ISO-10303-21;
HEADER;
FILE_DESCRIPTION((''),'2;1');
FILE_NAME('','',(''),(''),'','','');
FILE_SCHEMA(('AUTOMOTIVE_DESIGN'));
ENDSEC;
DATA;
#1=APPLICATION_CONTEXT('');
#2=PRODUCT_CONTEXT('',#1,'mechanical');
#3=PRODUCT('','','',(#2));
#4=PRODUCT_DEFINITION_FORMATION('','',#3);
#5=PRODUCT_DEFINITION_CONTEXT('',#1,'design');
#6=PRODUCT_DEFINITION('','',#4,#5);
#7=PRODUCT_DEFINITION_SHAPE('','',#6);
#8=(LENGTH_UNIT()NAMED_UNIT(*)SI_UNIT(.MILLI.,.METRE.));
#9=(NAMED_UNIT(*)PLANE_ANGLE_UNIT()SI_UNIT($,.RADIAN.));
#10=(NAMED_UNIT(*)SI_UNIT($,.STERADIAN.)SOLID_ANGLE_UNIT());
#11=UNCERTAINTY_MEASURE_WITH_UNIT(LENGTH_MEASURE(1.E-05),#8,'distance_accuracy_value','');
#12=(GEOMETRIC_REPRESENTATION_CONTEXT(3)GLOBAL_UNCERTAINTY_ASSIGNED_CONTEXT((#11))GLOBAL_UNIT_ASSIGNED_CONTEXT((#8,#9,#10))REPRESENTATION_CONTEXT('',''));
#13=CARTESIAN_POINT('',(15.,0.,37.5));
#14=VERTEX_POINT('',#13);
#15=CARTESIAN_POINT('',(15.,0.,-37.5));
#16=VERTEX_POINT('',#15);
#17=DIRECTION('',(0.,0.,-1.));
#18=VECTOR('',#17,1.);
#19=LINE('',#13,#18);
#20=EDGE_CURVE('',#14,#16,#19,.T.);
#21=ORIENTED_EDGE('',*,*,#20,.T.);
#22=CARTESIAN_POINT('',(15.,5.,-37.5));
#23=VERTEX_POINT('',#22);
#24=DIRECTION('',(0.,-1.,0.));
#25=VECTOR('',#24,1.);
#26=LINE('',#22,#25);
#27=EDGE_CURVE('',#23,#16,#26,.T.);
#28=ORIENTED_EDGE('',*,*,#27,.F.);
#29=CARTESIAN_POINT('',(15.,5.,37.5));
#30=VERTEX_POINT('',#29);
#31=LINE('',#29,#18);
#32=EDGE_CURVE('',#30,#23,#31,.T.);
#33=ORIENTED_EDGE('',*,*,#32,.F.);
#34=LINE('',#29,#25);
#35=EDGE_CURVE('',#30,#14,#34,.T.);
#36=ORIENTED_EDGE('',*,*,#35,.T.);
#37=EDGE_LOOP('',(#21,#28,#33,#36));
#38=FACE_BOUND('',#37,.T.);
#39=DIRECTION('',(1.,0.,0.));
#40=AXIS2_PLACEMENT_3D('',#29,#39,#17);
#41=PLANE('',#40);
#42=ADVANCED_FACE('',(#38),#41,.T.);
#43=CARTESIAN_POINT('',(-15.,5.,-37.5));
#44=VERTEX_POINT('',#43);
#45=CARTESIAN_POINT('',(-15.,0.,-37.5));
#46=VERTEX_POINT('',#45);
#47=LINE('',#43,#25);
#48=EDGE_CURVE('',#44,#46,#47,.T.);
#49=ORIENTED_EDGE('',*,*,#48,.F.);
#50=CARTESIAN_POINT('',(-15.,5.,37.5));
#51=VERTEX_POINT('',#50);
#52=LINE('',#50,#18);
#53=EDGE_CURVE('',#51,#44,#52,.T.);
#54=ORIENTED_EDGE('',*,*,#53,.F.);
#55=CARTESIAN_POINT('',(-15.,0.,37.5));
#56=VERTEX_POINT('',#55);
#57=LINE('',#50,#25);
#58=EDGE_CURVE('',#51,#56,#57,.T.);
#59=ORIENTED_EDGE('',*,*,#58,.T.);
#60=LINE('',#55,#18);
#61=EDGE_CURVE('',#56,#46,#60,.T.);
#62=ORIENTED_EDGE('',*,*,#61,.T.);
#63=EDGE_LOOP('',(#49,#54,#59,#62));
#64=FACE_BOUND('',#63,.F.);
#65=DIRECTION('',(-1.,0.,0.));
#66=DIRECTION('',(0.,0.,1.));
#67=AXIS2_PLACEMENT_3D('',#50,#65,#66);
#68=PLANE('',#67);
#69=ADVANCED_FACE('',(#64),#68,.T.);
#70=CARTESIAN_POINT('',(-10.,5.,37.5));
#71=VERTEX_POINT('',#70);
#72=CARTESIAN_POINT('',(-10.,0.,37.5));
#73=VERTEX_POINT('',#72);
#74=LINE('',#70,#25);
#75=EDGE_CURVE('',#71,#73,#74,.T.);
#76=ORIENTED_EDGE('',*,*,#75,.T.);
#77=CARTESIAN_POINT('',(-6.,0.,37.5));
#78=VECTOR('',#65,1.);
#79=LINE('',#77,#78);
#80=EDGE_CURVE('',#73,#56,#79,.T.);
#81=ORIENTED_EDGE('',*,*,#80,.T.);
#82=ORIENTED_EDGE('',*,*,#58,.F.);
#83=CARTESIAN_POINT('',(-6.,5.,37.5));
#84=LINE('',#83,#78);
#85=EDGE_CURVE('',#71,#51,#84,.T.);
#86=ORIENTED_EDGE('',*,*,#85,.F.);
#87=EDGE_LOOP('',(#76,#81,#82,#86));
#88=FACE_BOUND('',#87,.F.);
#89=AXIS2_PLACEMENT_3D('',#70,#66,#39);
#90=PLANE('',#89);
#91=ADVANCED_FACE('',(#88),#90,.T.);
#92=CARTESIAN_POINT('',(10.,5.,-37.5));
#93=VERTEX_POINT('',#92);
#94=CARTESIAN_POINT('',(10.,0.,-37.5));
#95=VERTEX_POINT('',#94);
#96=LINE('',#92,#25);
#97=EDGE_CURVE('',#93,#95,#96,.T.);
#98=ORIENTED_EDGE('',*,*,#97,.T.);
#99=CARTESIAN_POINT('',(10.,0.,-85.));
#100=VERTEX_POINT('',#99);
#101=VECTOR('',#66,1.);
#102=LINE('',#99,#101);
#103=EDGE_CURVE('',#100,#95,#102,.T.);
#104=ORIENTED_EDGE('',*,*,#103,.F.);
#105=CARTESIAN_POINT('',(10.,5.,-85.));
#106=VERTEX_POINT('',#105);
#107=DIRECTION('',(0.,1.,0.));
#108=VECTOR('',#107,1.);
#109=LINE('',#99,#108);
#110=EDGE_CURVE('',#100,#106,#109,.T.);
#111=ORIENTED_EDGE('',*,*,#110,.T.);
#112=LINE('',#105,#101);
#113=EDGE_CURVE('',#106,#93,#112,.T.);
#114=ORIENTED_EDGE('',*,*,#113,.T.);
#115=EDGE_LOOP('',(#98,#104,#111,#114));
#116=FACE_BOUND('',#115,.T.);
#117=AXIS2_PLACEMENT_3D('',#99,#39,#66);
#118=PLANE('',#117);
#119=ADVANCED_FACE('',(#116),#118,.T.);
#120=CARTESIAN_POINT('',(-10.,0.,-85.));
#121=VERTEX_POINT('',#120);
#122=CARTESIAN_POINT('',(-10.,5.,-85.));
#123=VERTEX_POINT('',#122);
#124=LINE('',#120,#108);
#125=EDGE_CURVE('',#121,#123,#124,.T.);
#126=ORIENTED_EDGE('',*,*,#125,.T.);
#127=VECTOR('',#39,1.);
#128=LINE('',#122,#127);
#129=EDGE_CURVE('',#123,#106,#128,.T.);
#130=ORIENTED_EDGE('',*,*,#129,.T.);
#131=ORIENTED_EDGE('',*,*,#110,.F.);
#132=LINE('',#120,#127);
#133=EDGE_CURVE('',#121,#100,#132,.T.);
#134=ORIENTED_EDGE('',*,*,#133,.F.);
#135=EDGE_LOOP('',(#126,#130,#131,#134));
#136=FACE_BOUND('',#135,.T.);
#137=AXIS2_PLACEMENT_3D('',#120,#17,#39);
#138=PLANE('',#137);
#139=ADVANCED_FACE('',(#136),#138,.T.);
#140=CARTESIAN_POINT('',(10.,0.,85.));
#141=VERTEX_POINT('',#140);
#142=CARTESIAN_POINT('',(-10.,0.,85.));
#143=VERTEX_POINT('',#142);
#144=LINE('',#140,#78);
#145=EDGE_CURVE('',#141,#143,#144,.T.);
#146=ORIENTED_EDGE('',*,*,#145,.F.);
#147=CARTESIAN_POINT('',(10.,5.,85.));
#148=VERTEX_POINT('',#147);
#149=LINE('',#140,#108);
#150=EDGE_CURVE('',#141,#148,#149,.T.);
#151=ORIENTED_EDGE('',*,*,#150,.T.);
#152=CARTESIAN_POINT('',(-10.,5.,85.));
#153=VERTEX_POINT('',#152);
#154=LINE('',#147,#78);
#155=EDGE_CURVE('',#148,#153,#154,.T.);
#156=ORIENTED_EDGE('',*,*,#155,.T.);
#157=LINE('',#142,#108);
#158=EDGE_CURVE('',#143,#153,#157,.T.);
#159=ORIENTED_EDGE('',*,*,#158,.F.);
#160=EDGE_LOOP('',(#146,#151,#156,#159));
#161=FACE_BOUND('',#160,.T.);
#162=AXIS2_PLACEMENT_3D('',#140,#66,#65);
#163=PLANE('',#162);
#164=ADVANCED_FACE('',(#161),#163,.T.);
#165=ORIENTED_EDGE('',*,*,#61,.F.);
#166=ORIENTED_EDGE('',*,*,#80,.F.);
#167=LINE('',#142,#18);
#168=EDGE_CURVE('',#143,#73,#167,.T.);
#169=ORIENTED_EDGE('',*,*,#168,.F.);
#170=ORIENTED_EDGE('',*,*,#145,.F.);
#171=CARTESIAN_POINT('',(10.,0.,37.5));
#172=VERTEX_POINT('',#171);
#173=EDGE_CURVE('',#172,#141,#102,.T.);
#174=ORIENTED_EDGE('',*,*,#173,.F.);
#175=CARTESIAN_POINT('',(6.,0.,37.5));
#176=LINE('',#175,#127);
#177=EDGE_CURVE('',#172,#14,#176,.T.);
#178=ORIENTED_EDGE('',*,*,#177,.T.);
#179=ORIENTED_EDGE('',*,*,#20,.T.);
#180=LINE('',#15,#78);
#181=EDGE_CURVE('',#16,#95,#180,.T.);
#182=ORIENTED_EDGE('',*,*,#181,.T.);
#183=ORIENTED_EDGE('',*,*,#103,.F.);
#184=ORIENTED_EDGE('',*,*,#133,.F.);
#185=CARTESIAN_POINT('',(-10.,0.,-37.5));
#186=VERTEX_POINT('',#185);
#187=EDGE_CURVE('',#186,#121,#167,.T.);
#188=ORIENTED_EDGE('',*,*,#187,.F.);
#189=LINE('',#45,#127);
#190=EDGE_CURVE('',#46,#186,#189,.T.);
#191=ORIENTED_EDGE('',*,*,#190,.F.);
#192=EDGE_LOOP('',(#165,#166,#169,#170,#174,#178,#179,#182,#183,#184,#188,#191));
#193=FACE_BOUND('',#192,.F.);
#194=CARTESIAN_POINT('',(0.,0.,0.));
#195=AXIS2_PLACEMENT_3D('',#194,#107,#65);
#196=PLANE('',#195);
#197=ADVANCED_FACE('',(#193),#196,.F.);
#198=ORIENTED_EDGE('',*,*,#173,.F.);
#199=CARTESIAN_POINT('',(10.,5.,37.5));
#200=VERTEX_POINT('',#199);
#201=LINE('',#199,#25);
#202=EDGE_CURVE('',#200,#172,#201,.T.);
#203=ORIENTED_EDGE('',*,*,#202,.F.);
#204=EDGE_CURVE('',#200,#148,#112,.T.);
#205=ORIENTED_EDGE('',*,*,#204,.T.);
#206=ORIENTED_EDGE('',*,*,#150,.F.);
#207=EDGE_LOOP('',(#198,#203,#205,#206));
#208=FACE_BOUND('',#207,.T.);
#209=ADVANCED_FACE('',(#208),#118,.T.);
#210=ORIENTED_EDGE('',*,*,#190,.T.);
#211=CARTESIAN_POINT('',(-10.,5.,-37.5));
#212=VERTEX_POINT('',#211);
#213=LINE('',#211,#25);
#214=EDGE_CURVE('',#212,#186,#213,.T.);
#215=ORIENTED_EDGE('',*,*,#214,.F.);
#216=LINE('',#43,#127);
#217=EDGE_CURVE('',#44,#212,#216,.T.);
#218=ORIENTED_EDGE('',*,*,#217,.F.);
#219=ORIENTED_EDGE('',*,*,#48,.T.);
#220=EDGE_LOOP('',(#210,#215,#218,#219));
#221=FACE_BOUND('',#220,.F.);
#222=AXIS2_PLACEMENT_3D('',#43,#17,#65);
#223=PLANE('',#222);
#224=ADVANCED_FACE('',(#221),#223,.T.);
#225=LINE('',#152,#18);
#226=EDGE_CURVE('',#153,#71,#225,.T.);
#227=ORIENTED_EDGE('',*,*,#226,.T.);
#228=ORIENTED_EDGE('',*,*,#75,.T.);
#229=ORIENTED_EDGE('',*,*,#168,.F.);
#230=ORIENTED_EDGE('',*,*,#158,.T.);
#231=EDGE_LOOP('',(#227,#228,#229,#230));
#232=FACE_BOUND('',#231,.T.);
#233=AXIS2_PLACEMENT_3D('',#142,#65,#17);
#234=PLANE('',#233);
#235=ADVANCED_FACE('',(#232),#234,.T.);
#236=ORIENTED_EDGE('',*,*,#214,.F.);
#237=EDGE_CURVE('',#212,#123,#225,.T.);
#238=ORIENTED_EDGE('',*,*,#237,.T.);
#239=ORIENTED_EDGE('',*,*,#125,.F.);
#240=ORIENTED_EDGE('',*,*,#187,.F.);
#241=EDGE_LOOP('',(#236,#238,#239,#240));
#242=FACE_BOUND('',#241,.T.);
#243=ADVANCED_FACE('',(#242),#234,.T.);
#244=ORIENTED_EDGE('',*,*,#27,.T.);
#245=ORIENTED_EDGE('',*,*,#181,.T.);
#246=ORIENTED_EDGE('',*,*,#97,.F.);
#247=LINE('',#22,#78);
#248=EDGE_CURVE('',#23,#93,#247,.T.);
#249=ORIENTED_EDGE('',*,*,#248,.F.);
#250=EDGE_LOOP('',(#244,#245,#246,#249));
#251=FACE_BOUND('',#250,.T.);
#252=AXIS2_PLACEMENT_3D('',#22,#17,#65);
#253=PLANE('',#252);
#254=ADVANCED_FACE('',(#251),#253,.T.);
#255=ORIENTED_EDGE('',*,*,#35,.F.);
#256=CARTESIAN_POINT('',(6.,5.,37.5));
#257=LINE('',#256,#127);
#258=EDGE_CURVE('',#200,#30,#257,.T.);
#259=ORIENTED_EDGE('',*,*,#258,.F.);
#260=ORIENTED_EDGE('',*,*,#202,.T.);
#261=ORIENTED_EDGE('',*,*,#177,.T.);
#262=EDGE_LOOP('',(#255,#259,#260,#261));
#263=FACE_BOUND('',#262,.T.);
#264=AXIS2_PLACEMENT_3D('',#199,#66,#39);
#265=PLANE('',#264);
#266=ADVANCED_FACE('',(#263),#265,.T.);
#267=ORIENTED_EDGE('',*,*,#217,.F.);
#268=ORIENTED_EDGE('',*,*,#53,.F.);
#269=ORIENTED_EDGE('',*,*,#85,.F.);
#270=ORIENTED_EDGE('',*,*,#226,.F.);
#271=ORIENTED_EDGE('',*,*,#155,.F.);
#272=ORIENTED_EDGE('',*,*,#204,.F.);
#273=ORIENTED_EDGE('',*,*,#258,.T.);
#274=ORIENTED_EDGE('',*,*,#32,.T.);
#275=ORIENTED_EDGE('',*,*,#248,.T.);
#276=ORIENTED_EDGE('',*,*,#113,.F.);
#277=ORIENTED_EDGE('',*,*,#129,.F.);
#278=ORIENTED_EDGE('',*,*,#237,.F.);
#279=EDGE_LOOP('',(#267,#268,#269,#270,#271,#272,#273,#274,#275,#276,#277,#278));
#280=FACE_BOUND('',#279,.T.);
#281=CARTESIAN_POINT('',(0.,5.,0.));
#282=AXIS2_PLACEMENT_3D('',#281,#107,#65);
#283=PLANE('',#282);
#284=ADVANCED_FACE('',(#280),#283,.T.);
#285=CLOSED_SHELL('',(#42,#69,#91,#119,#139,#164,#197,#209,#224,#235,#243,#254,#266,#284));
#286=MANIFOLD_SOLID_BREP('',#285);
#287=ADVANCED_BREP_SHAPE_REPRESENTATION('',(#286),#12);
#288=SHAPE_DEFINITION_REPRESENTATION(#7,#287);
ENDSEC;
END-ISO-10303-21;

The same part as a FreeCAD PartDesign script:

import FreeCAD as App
import Part
import Sketcher

V = App.Vector


def add_polygon(sketch, points):
    """Adds a closed chain of lines whose ends are joined by coincident constraints."""
    first, n = sketch.GeometryCount, len(points)
    for a, b in zip(points, points[1:] + points[:1]):
        sketch.addGeometry(Part.LineSegment(App.Vector(*a, 0), App.Vector(*b, 0)), False)
    for i in range(n):
        sketch.addConstraint(Sketcher.Constraint("Coincident", first + i, 2, first + (i + 1) % n, 1))

doc = App.newDocument("Part")
body = doc.addObject("PartDesign::Body", "Body")

# Sketch on XZ plane
sketch1 = body.newObject("Sketcher::SketchObject", "Sketch")
sketch1.AttachmentSupport = (doc.getObject("XZ_Plane"), [""])
sketch1.MapMode = "FlatFace"
add_polygon(sketch1, [(-10, 85), (10, 85), (10, -85), (-10, -85)])  # lines 0-3
sketch1.addConstraint([
    Sketcher.Constraint("Horizontal", 0),
    Sketcher.Constraint("Vertical", 1),
    Sketcher.Constraint("Horizontal", 2),
    Sketcher.Constraint("Vertical", 3),
    Sketcher.Constraint("Symmetric", 0, 2, 2, 2, -1, 1),
    Sketcher.Constraint("DistanceX", 0, 1, 0, 2, 20.0),
    Sketcher.Constraint("DistanceY", 1, 2, 1, 1, 170.0),
])
pad1 = body.newObject("PartDesign::Pad", "Pad")
pad1.Profile = sketch1
pad1.Length = 5
pad1.Reversed = True

# Sketch on XZ plane
sketch2 = body.newObject("Sketcher::SketchObject", "Sketch001")
sketch2.AttachmentSupport = (doc.getObject("XZ_Plane"), [""])
sketch2.MapMode = "FlatFace"
sketch2.AttachmentOffset = App.Placement(V(0, 0, -5), App.Rotation())
add_polygon(sketch2, [(10, -38), (10, 38), (15, 38), (15, -38)])  # lines 0-3
sketch2.addConstraint([
    Sketcher.Constraint("Vertical", 0),
    Sketcher.Constraint("Horizontal", 1),
    Sketcher.Constraint("Vertical", 2),
    Sketcher.Constraint("Horizontal", 3),
    Sketcher.Constraint("DistanceX", 1, 1, 1, 2, 5.0),
    Sketcher.Constraint("DistanceY", 0, 1, 0, 2, 75.0),
    Sketcher.Constraint("DistanceX", -1, 1, 0, 2, 10.0),
    Sketcher.Constraint("DistanceY", -1, 1, 0, 2, 37.5),
])
pad2 = body.newObject("PartDesign::Pad", "Pad001")
pad2.Profile = sketch2
pad2.Length = 5
doc.recompute()

mirrored = body.newObject("PartDesign::Mirrored", "Mirrored")
mirrored.Originals = [pad2]
mirrored.MirrorPlane = (doc.getObject("YZ_Plane"), [""])
body.Tip = mirrored

doc.recompute()
